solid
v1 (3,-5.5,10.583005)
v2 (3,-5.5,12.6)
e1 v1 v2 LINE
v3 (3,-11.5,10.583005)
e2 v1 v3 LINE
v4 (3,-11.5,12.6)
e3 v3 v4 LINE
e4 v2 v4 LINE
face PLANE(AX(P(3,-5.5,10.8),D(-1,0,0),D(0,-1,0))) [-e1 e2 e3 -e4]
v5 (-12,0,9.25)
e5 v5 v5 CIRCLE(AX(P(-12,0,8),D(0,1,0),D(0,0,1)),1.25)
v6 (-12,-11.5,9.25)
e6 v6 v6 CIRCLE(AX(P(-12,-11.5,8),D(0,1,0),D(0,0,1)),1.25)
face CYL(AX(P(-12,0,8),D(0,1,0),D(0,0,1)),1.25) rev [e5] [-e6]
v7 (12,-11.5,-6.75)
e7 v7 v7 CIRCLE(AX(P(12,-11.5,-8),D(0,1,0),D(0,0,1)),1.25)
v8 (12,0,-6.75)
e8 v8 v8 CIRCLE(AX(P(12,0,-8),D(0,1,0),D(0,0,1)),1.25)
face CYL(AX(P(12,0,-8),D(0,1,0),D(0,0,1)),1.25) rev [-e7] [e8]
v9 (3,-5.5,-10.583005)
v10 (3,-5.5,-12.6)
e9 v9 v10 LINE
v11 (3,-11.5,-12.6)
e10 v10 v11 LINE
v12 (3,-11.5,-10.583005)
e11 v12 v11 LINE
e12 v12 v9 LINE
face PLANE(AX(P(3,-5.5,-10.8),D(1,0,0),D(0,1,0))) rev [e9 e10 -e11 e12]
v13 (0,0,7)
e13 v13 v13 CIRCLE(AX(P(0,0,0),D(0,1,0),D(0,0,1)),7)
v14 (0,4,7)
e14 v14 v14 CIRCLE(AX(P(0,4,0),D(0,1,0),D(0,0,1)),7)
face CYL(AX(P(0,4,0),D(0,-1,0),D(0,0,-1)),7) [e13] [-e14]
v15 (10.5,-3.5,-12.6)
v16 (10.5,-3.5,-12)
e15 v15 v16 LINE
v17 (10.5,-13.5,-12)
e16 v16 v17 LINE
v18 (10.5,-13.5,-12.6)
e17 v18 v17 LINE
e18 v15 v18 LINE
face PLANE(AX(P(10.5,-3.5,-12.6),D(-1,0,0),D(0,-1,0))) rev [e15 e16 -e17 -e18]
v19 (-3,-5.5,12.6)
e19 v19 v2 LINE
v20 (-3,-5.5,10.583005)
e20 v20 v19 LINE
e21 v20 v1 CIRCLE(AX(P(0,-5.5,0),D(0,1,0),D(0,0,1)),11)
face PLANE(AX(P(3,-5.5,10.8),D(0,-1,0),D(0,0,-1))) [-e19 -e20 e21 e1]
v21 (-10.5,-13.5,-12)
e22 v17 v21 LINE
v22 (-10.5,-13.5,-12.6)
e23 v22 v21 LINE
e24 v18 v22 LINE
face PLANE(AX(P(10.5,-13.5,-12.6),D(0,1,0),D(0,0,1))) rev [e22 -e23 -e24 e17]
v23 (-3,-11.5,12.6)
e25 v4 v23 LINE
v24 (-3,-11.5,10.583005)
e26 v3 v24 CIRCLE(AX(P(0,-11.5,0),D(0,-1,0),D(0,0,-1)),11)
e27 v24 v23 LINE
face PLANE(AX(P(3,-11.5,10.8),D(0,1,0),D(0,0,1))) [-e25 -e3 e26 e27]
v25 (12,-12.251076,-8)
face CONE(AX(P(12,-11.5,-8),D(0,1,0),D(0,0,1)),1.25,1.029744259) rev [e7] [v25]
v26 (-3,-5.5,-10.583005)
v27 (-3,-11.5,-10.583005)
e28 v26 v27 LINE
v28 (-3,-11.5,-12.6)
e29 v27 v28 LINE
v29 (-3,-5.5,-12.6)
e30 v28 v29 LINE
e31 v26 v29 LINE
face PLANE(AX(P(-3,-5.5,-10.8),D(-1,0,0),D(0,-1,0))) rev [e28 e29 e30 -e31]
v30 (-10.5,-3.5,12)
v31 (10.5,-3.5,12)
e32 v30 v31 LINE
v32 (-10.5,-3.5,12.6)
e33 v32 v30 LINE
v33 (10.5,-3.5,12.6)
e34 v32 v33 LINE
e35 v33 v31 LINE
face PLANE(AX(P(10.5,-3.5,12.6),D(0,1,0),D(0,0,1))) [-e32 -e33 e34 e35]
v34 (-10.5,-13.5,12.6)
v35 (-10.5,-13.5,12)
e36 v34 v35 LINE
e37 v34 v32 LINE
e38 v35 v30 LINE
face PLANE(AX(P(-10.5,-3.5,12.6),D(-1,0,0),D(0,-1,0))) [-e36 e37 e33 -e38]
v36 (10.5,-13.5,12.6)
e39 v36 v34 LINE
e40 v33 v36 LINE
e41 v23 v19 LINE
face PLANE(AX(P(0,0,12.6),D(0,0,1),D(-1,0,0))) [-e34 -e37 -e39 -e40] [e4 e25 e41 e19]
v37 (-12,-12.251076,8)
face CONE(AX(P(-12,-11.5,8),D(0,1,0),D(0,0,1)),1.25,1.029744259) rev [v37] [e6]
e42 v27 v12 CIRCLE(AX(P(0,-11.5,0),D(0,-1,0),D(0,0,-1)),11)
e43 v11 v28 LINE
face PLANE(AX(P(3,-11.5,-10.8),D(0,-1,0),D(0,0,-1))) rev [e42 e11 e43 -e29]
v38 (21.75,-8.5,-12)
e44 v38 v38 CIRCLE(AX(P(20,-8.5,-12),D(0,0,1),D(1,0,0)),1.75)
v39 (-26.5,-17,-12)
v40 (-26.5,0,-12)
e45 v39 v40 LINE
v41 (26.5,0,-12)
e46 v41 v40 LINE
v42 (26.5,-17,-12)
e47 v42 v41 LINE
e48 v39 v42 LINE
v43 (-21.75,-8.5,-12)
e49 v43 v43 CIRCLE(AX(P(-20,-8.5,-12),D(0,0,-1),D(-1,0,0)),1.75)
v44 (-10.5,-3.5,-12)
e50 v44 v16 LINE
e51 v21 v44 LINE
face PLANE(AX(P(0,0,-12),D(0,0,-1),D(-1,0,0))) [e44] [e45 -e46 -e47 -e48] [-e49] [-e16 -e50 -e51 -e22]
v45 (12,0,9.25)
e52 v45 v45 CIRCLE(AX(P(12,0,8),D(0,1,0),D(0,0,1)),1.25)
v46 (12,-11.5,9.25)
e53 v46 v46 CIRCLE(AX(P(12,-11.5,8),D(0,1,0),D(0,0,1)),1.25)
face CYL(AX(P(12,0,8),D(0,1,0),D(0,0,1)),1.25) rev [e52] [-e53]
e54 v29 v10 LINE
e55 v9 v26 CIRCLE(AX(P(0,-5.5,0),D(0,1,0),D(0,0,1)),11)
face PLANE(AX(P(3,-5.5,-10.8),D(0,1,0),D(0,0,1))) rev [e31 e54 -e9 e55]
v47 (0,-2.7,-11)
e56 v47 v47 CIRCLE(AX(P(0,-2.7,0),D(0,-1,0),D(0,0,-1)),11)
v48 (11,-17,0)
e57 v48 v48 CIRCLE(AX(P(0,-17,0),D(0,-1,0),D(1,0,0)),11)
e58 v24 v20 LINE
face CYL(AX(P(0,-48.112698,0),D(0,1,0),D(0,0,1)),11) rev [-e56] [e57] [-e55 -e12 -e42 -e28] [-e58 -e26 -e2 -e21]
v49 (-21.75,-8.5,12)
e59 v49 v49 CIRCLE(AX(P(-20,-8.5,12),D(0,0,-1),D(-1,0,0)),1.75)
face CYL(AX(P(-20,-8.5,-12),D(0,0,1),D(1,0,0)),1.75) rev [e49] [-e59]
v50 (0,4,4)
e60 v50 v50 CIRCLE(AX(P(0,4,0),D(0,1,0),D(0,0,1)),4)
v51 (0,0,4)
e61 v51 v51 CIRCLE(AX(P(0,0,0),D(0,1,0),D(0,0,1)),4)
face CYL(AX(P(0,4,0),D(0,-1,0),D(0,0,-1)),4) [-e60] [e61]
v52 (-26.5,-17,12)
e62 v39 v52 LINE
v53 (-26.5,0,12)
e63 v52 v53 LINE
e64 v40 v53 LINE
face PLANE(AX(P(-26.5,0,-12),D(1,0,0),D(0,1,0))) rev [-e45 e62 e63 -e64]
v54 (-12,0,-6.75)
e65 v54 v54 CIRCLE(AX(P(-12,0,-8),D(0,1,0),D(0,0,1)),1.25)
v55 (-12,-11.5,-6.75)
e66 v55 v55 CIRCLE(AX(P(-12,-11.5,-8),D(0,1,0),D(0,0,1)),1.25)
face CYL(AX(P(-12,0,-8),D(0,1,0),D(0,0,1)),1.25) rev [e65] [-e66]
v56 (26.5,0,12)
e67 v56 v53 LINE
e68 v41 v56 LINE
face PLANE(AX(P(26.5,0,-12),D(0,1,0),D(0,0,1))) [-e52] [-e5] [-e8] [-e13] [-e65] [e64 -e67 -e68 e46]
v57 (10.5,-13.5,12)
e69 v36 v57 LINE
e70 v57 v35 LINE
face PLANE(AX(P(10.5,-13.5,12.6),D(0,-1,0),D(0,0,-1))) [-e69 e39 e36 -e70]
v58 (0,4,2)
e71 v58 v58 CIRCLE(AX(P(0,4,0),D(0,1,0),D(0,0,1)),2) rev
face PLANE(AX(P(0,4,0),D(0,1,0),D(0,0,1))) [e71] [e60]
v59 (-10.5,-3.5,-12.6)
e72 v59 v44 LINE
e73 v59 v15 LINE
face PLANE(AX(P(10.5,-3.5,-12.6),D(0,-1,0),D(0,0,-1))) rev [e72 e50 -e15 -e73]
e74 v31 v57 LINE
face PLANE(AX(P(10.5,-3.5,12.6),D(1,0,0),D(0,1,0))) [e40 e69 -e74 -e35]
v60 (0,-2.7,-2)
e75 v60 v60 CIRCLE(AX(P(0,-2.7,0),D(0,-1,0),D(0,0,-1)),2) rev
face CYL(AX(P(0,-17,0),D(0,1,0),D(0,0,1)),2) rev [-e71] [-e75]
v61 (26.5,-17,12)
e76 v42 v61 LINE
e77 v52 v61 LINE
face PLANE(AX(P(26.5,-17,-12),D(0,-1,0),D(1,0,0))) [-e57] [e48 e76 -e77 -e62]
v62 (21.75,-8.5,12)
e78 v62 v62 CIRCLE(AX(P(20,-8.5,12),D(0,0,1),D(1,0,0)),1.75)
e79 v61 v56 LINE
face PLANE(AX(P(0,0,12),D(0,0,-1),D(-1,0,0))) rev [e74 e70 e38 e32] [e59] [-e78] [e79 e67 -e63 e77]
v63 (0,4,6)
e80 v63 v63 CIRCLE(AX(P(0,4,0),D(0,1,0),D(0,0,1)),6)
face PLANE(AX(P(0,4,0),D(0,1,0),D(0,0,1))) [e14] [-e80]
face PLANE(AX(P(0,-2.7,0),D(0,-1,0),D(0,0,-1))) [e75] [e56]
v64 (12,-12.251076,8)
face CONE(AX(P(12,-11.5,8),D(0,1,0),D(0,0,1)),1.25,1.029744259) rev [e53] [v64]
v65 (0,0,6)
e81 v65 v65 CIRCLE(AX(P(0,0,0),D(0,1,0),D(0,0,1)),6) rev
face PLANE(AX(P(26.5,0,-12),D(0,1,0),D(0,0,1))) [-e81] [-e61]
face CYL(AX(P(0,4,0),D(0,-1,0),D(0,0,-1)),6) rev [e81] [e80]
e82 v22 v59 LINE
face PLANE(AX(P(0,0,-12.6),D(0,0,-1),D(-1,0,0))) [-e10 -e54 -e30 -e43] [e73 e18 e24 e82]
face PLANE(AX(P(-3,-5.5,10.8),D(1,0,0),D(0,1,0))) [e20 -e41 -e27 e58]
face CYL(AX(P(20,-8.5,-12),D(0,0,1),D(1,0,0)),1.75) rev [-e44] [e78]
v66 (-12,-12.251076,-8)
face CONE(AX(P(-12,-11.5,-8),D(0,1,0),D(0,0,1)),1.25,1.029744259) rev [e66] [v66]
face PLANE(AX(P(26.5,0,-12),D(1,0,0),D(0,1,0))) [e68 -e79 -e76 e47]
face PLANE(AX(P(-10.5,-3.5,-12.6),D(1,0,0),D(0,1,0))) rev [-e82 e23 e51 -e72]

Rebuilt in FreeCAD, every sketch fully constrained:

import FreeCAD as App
import Part
import Sketcher
from FreeCAD import Vector
Q = App.Units.Quantity


def add_polygon(sketch, points):
    """Adds a closed chain of lines whose ends are joined by coincident constraints."""
    first, n = sketch.GeometryCount, len(points)
    for a, b in zip(points, points[1:] + points[:1]):
        sketch.addGeometry(Part.LineSegment(App.Vector(*a, 0), App.Vector(*b, 0)), False)
    for i in range(n):
        sketch.addConstraint(Sketcher.Constraint("Coincident", first + i, 2, first + (i + 1) % n, 1))

doc = App.newDocument("Part")
body = doc.addObject("PartDesign::Body", "Body")

# Sketch on XY plane
sketch1 = doc.addObject("Sketcher::SketchObject", "Sketch")
body.addObject(sketch1)
sketch1.AttachmentSupport = (doc.XY_Plane, [""])
sketch1.MapMode = "FlatFace"
add_polygon(sketch1, [(11.2, -2.7), (11.2, -17), (26.5, -17), (26.5, 0), (0, 0), (0, -2.7)])  # lines 0-5
sketch1.addGeometry(Part.Circle(Vector(20, -8.5, 0), Vector(0, 0, 1), 1.75), False)  # 6
sketch1.addConstraint([
    Sketcher.Constraint("Vertical", 0),
    Sketcher.Constraint("Horizontal", 1),
    Sketcher.Constraint("Vertical", 2),
    Sketcher.Constraint("Horizontal", 3),
    Sketcher.Constraint("Vertical", 4),
    Sketcher.Constraint("Horizontal", 5),
    Sketcher.Constraint("Coincident", 3, 2, -1, 1),
    Sketcher.Constraint("Diameter", 6, Q("3.5 mm")),
    Sketcher.Constraint("DistanceY", 2, 1, 2, 2, Q("17 mm")),
    Sketcher.Constraint("DistanceX", 1, 1, 1, 2, Q("15.3 mm")),
    Sketcher.Constraint("DistanceX", 3, 2, 3, 1, Q("26.5 mm")),
    Sketcher.Constraint("DistanceY", 0, 2, 0, 1, Q("14.3 mm")),
    Sketcher.Constraint("DistanceX", -1, 1, 6, 3, Q("20 mm")),
    Sketcher.Constraint("DistanceY", 6, 3, -1, 1, Q("8.5 mm")),
])
pad1 = doc.addObject("PartDesign::Pad", "Pad")
body.addObject(pad1)
pad1.Profile = sketch1
pad1.Length = 24
pad1.Midplane = True
doc.recompute()

mirrored = doc.addObject("PartDesign::Mirrored", "Mirrored")
body.addObject(mirrored)
mirrored.Originals = [pad1]
mirrored.MirrorPlane = (doc.YZ_Plane, [""])
body.Tip = mirrored

# Sketch on XZ plane
sketch2 = doc.addObject("Sketcher::SketchObject", "Sketch001")
body.addObject(sketch2)
sketch2.AttachmentSupport = (doc.XZ_Plane, [""])
sketch2.MapMode = "FlatFace"
sketch2.addGeometry(Part.Circle(Vector(0, 0, 0), Vector(0, 0, 1), 2), False)
sketch2.addConstraint([
    Sketcher.Constraint("Coincident", 0, 3, -1, 1),
    Sketcher.Constraint("Diameter", 0, Q("4 mm")),
])
pocket1 = doc.addObject("PartDesign::Pocket", "Pocket")
body.addObject(pocket1)
pocket1.Profile = sketch2
pocket1.Type = "ThroughAll"
pocket1.Reversed = True

# Sketch on XY plane
sketch3 = doc.addObject("Sketcher::SketchObject", "Sketch002")
body.addObject(sketch3)
sketch3.AttachmentSupport = (doc.XY_Plane, [""])
sketch3.MapMode = "FlatFace"
sketch3.AttachmentOffset = App.Placement(Vector(0, 0, -12), App.Rotation())
add_polygon(sketch3, [(11.2, -2.7), (11.2, -17), (-11.2, -17), (-11.2, -2.7)])  # lines 0-3
add_polygon(sketch3, [(-3, -11.5), (3, -11.5), (3, -5.5), (-3, -5.5)])  # lines 4-7
sketch3.addConstraint([
    Sketcher.Constraint("Vertical", 0),
    Sketcher.Constraint("Horizontal", 1),
    Sketcher.Constraint("Vertical", 2),
    Sketcher.Constraint("Horizontal", 3),
    Sketcher.Constraint("Horizontal", 4),
    Sketcher.Constraint("Vertical", 5),
    Sketcher.Constraint("Horizontal", 6),
    Sketcher.Constraint("Vertical", 7),
    Sketcher.Constraint("Equal", 6, 5),
    Sketcher.Constraint("DistanceX", 4, 1, 4, 2, Q("6 mm")),
    Sketcher.Constraint("DistanceX", 1, 2, 1, 1, Q("22.4 mm")),
    Sketcher.Constraint("DistanceY", 0, 2, 0, 1, Q("14.3 mm")),
    Sketcher.Constraint("DistanceY", 0, 2, -1, 1, Q("17 mm")),
    Sketcher.Constraint("DistanceX", -1, 1, 4, 2, Q("3 mm")),
    Sketcher.Constraint("DistanceX", -1, 1, 0, 2, Q("11.2 mm")),
    Sketcher.Constraint("DistanceY", 4, 2, -1, 1, Q("11.5 mm")),
])
pad2 = doc.addObject("PartDesign::Pad", "Pad001")
body.addObject(pad2)
pad2.Profile = sketch3
pad2.Length = 1.2

# Sketch on XY plane
sketch4 = doc.addObject("Sketcher::SketchObject", "Sketch003")
body.addObject(sketch4)
sketch4.AttachmentSupport = (doc.XY_Plane, [""])
sketch4.MapMode = "FlatFace"
sketch4.AttachmentOffset = App.Placement(Vector(0, 0, -12), App.Rotation())
add_polygon(sketch4, [(10.5, -3.5), (10.5, -13.5), (-10.5, -13.5), (-10.5, -3.5)])  # lines 0-3
add_polygon(sketch4, [(-3, -11.5), (3, -11.5), (3, -5.5), (-3, -5.5)])  # lines 4-7
sketch4.addConstraint([
    Sketcher.Constraint("Vertical", 0),
    Sketcher.Constraint("Horizontal", 1),
    Sketcher.Constraint("Vertical", 2),
    Sketcher.Constraint("Horizontal", 3),
    Sketcher.Constraint("Horizontal", 4),
    Sketcher.Constraint("Vertical", 5),
    Sketcher.Constraint("Horizontal", 6),
    Sketcher.Constraint("Vertical", 7),
    Sketcher.Constraint("Equal", 6, 5),
    Sketcher.Constraint("DistanceX", 1, 2, 1, 1, Q("21 mm")),
    Sketcher.Constraint("DistanceX", 4, 1, 4, 2, Q("6 mm")),
    Sketcher.Constraint("DistanceY", 0, 2, 0, 1, Q("10 mm")),
    Sketcher.Constraint("DistanceX", -1, 1, 4, 2, Q("3 mm")),
    Sketcher.Constraint("DistanceY", 0, 2, 4, 2, Q("2 mm")),
    Sketcher.Constraint("DistanceX", -1, 1, 0, 2, Q("10.5 mm")),
    Sketcher.Constraint("DistanceY", 0, 2, -1, 1, Q("13.5 mm")),
])
pad3 = doc.addObject("PartDesign::Pad", "Pad002")
body.addObject(pad3)
pad3.Profile = sketch4
pad3.Length = 0.6
pad3.Reversed = True
doc.recompute()

mirrored2 = doc.addObject("PartDesign::Mirrored", "Mirrored001")
body.addObject(mirrored2)
mirrored2.Originals = [pad2, pad3]
mirrored2.MirrorPlane = (doc.XY_Plane, [""])
body.Tip = mirrored2

# Sketch on XZ plane
sketch5 = doc.addObject("Sketcher::SketchObject", "Sketch004")
body.addObject(sketch5)
sketch5.AttachmentSupport = (doc.XZ_Plane, [""])
sketch5.MapMode = "FlatFace"
sketch5.AttachmentOffset = App.Placement(Vector(0, 0, 2.7), App.Rotation())
add_polygon(sketch5, [(-12.2, 11.8), (-12.2, -11.8), (12.2, -11.8), (12.2, 11.8)])  # lines 0-3
sketch5.addConstraint([
    Sketcher.Constraint("Vertical", 0),
    Sketcher.Constraint("Horizontal", 1),
    Sketcher.Constraint("Vertical", 2),
    Sketcher.Constraint("Horizontal", 3),
    Sketcher.Constraint("Symmetric", 0, 2, 2, 2, -1, 1),
    Sketcher.Constraint("DistanceX", 1, 1, 1, 2, Q("24.4 mm")),
    Sketcher.Constraint("DistanceY", 0, 2, 0, 1, Q("23.6 mm")),
])
pad4 = doc.addObject("PartDesign::Pad", "Pad003")
body.addObject(pad4)
pad4.Profile = sketch5
pad4.Length = 14.3

# Sketch on XZ plane
sketch6 = doc.addObject("Sketcher::SketchObject", "Sketch005")
body.addObject(sketch6)
sketch6.AttachmentSupport = (doc.XZ_Plane, [""])
sketch6.MapMode = "FlatFace"
sketch6.AttachmentOffset = App.Placement(Vector(0, 0, 2.7), App.Rotation())
sketch6.addGeometry(Part.Circle(Vector(0, 0, 0), Vector(0, 0, 1), 11), False)
sketch6.addConstraint([
    Sketcher.Constraint("Coincident", 0, 3, -1, 1),
    Sketcher.Constraint("Diameter", 0, Q("22 mm")),
])
pocket2 = doc.addObject("PartDesign::Pocket", "Pocket001")
body.addObject(pocket2)
pocket2.Profile = sketch6
pocket2.Length = 14.3
pocket2.Reversed = True

# Sketch on XY plane
sketch7 = doc.addObject("Sketcher::SketchObject", "Sketch006")
body.addObject(sketch7)
sketch7.AttachmentSupport = (doc.XY_Plane, [""])
sketch7.MapMode = "FlatFace"
sketch7.AttachmentOffset = App.Placement(Vector(0, 0, 11.8), App.Rotation())
add_polygon(sketch7, [(-3, -5.5), (-3, -11.5), (3, -11.5), (3, -5.5)])  # lines 0-3
sketch7.addConstraint([
    Sketcher.Constraint("Vertical", 0),
    Sketcher.Constraint("Horizontal", 1),
    Sketcher.Constraint("Vertical", 2),
    Sketcher.Constraint("Horizontal", 3),
    Sketcher.Constraint("Equal", 3, 0),
    Sketcher.Constraint("DistanceX", 1, 1, 1, 2, Q("6 mm")),
    Sketcher.Constraint("DistanceX", 0, 2, -1, 1, Q("3 mm")),
    Sketcher.Constraint("DistanceY", 0, 2, -1, 1, Q("11.5 mm")),
])
pocket3 = doc.addObject("PartDesign::Pocket", "Pocket002")
body.addObject(pocket3)
pocket3.Profile = sketch7
pocket3.Type = "ThroughAll"

# Sketch on XZ plane
sketch8 = doc.addObject("Sketcher::SketchObject", "Sketch007")
body.addObject(sketch8)
sketch8.AttachmentSupport = (doc.XZ_Plane, [""])
sketch8.MapMode = "FlatFace"
sketch8.addGeometry([
    Part.Circle(Vector(0, 0, 0), Vector(0, 0, 1), 7),
    Part.Circle(Vector(0, 0, 0), Vector(0, 0, 1), 6),
    Part.Circle(Vector(0, 0, 0), Vector(0, 0, 1), 4),
    Part.Circle(Vector(0, 0, 0), Vector(0, 0, 1), 2),
], False)
sketch8.addConstraint([
    Sketcher.Constraint("Coincident", 0, 3, -1, 1),
    Sketcher.Constraint("Coincident", 1, 3, -1, 1),
    Sketcher.Constraint("Coincident", 2, 3, -1, 1),
    Sketcher.Constraint("Coincident", 3, 3, -1, 1),
    Sketcher.Constraint("Diameter", 0, Q("14 mm")),
    Sketcher.Constraint("Diameter", 1, Q("12 mm")),
    Sketcher.Constraint("Diameter", 2, Q("8 mm")),
    Sketcher.Constraint("Diameter", 3, Q("4 mm")),
])
pad5 = doc.addObject("PartDesign::Pad", "Pad004")
body.addObject(pad5)
pad5.Profile = sketch8
pad5.Length = 4
pad5.Reversed = True

# Sketch on XZ plane
sketch9 = doc.addObject("Sketcher::SketchObject", "Sketch008")
body.addObject(sketch9)
sketch9.AttachmentSupport = (doc.XZ_Plane, [""])
sketch9.MapMode = "FlatFace"
sketch9.addGeometry([
    Part.Circle(Vector(12, -8, 0), Vector(0, 0, 1), 1.25),
    Part.Circle(Vector(12, 8, 0), Vector(0, 0, 1), 1.25),
    Part.Circle(Vector(-12, 8, 0), Vector(0, 0, 1), 1.25),
    Part.Circle(Vector(-12, -8, 0), Vector(0, 0, 1), 1.25),
], False)
sketch9.addConstraint([
    Sketcher.Constraint("Equal", 0, 1),
    Sketcher.Constraint("Equal", 1, 2),
    Sketcher.Constraint("Equal", 2, 3),
    Sketcher.Constraint("Symmetric", 0, 3, 2, 3, -1, 1),
    Sketcher.Constraint("Symmetric", 1, 3, 3, 3, -1, 1),
    Sketcher.Constraint("Symmetric", 1, 3, 2, 3, -2),
    Sketcher.Constraint("Diameter", 0, Q("2.5 mm")),
    Sketcher.Constraint("DistanceX", -1, 1, 0, 3, Q("12 mm")),
    Sketcher.Constraint("DistanceY", 0, 3, -1, 1, Q("8 mm")),
])
doc.recompute()
hole = doc.addObject("PartDesign::Hole", "Hole")
body.addObject(hole)
hole.Profile = sketch9
hole.ThreadType = "None"
hole.Diameter = 2.5
hole.DepthType = "Dimension"
hole.Depth = 11.5
hole.DrillPoint = "Angled"
hole.DrillPointAngle = 118
hole.Reversed = True

doc.recompute()
